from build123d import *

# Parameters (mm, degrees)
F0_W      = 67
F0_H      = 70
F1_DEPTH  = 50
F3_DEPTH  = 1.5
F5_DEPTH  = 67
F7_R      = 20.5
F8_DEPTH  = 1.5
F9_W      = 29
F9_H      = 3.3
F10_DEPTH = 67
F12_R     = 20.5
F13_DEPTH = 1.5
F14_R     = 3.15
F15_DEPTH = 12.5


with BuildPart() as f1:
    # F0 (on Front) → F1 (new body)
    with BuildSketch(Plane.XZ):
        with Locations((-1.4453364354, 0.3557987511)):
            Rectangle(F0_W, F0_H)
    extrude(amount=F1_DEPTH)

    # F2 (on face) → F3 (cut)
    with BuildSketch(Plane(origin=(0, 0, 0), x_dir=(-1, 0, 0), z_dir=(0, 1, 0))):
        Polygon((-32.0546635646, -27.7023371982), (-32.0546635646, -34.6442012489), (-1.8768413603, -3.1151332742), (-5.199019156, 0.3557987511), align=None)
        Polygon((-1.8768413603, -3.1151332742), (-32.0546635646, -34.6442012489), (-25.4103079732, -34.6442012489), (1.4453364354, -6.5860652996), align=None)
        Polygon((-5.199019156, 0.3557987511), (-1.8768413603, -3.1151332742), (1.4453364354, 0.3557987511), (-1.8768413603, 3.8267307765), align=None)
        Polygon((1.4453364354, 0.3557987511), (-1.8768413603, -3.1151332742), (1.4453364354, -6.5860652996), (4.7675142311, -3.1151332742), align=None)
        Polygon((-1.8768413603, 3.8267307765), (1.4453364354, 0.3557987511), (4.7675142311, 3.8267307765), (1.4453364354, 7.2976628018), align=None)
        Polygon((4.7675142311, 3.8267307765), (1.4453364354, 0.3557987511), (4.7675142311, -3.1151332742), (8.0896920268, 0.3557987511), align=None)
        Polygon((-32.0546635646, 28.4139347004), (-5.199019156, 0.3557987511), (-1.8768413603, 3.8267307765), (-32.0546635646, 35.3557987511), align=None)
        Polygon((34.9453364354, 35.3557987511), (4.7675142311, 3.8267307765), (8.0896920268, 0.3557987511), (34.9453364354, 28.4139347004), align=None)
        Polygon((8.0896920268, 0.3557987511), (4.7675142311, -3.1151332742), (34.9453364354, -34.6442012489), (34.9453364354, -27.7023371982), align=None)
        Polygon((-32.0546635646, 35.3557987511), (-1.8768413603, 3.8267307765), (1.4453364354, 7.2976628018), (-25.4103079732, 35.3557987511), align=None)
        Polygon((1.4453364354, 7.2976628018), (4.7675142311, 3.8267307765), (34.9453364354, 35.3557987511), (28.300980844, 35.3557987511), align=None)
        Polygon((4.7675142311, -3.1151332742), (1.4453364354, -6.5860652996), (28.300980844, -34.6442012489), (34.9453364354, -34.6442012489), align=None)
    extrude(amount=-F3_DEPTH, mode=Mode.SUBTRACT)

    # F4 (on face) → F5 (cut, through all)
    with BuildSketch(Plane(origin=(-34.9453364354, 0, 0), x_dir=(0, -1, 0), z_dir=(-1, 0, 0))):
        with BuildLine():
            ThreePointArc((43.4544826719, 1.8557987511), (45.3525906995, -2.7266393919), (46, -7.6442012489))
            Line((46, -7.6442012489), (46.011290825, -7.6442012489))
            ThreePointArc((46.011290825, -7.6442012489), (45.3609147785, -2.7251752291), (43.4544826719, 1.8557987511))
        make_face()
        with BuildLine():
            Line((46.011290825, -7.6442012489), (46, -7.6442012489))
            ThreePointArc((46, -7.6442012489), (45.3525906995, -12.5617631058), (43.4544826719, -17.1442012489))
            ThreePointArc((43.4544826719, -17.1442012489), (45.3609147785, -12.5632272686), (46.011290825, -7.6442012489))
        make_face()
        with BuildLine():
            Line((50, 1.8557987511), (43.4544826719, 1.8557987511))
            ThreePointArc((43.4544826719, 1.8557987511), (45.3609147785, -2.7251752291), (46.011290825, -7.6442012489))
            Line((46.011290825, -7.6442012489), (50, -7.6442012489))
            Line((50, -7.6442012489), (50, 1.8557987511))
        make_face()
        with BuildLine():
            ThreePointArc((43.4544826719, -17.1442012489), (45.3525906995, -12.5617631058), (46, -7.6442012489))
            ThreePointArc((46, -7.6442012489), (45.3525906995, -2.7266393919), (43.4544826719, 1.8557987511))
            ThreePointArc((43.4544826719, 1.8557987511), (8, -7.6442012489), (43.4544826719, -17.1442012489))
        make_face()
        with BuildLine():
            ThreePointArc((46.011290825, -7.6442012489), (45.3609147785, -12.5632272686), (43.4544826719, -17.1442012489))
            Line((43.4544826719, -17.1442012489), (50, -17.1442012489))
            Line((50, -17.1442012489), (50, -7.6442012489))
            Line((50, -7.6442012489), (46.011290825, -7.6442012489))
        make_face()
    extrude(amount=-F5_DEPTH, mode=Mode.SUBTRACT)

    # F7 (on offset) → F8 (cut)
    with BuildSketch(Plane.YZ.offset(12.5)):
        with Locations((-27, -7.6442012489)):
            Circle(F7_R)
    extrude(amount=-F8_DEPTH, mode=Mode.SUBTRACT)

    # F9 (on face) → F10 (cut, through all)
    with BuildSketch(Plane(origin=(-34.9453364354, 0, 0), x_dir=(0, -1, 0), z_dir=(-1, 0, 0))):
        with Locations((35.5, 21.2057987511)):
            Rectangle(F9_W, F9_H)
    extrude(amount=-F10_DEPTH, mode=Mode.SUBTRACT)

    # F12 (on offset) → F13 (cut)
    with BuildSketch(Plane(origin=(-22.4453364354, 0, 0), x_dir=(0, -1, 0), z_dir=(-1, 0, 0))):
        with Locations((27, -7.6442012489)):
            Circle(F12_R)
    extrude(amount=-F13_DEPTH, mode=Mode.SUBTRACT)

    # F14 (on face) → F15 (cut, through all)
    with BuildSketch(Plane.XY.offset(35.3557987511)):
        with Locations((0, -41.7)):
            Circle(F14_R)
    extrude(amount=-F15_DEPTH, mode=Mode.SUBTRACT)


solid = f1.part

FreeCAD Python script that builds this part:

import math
import FreeCAD as App
import Part
import Sketcher

V = App.Vector
Q = App.Units.Quantity

doc = App.newDocument("Part")
body = doc.addObject("PartDesign::Body", "Body")

sketch1 = doc.addObject("Sketcher::SketchObject", "Sketch")
body.addObject(sketch1)
sketch1.AttachmentSupport = (doc.XZ_Plane, [""])
sketch1.MapMode = "FlatFace"
sketch1.addGeometry([
    Part.LineSegment(V(-35, 35, 0), V(-35, -35, 0)),
    Part.LineSegment(V(-35, -35, 0), V(32, -35, 0)),
    Part.LineSegment(V(32, -35, 0), V(32, 35, 0)),
    Part.LineSegment(V(32, 35, 0), V(-35, 35, 0)),
], False)
sketch1.addConstraint([
    Sketcher.Constraint("Coincident", 0, 2, 1, 1),
    Sketcher.Constraint("Coincident", 1, 2, 2, 1),
    Sketcher.Constraint("Coincident", 2, 2, 3, 1),
    Sketcher.Constraint("Coincident", 3, 2, 0, 1),
    Sketcher.Constraint("Vertical", 0),
    Sketcher.Constraint("Horizontal", 1),
    Sketcher.Constraint("Vertical", 2),
    Sketcher.Constraint("Horizontal", 3),
    Sketcher.Constraint("DistanceX", 1, 1, 1, 2, Q("67 mm")),
    Sketcher.Constraint("DistanceY", 0, 2, 0, 1, Q("70 mm")),
    Sketcher.Constraint("DistanceY", 0, 2, -1, 1, Q("34.644201 mm")),
    Sketcher.Constraint("DistanceX", 0, 2, -1, 1, Q("34.945336 mm")),
])
pad1 = doc.addObject("PartDesign::Pad", "Pad")
body.addObject(pad1)
pad1.Profile = sketch1
pad1.Length = 50

sketch2 = doc.addObject("Sketcher::SketchObject", "Sketch001")
body.addObject(sketch2)
sketch2.AttachmentSupport = (doc.XZ_Plane, [""])
sketch2.MapMode = "FlatFace"
sketch2.addGeometry([
    Part.LineSegment(V(32, -28, 0), V(32, -35, 0)),
    Part.LineSegment(V(32, -35, 0), V(25, -35, 0)),
    Part.LineSegment(V(25, -35, 0), V(-1, -7, 0)),
    Part.LineSegment(V(-1, -7, 0), V(-28, -35, 0)),
    Part.LineSegment(V(-28, -35, 0), V(-35, -35, 0)),
    Part.LineSegment(V(-35, -35, 0), V(-35, -28, 0)),
    Part.LineSegment(V(-35, -28, 0), V(-8, 0, 0)),
    Part.LineSegment(V(-8, 0, 0), V(-35, 28, 0)),
    Part.LineSegment(V(-35, 28, 0), V(-35, 35, 0)),
    Part.LineSegment(V(-35, 35, 0), V(-28, 35, 0)),
    Part.LineSegment(V(-28, 35, 0), V(-1, 7, 0)),
    Part.LineSegment(V(-1, 7, 0), V(25, 35, 0)),
    Part.LineSegment(V(25, 35, 0), V(32, 35, 0)),
    Part.LineSegment(V(32, 35, 0), V(32, 28, 0)),
    Part.LineSegment(V(32, 28, 0), V(5, 0, 0)),
    Part.LineSegment(V(5, 0, 0), V(32, -28, 0)),
], False)
sketch2.addConstraint([
    Sketcher.Constraint("Coincident", 0, 2, 1, 1),
    Sketcher.Constraint("Coincident", 1, 2, 2, 1),
    Sketcher.Constraint("Coincident", 2, 2, 3, 1),
    Sketcher.Constraint("Coincident", 3, 2, 4, 1),
    Sketcher.Constraint("Coincident", 4, 2, 5, 1),
    Sketcher.Constraint("Coincident", 5, 2, 6, 1),
    Sketcher.Constraint("Coincident", 6, 2, 7, 1),
    Sketcher.Constraint("Coincident", 7, 2, 8, 1),
    Sketcher.Constraint("Coincident", 8, 2, 9, 1),
    Sketcher.Constraint("Coincident", 9, 2, 10, 1),
    Sketcher.Constraint("Coincident", 10, 2, 11, 1),
    Sketcher.Constraint("Coincident", 11, 2, 12, 1),
    Sketcher.Constraint("Coincident", 12, 2, 13, 1),
    Sketcher.Constraint("Coincident", 13, 2, 14, 1),
    Sketcher.Constraint("Coincident", 14, 2, 15, 1),
    Sketcher.Constraint("Coincident", 15, 2, 0, 1),
    Sketcher.Constraint("Vertical", 0),
    Sketcher.Constraint("Horizontal", 1),
    Sketcher.Constraint("Horizontal", 4),
    Sketcher.Constraint("Vertical", 5),
    Sketcher.Constraint("Vertical", 8),
    Sketcher.Constraint("Horizontal", 9),
    Sketcher.Constraint("Horizontal", 12),
    Sketcher.Constraint("Vertical", 13),
    Sketcher.Constraint("Parallel", 3, 6),
    Sketcher.Constraint("Parallel", 2, 7),
    Sketcher.Constraint("Parallel", 7, 10),
    Sketcher.Constraint("Parallel", 6, 11),
    Sketcher.Constraint("Parallel", 11, 14),
    Sketcher.Constraint("Parallel", 10, 15),
    Sketcher.Constraint("Horizontal", 1, 2, 3, 2),
    Sketcher.Constraint("Horizontal", 9, 2, 11, 2),
    Sketcher.Constraint("Horizontal", 7, 2, 13, 2),
    Sketcher.Constraint("Horizontal", 6, 2, 14, 2),
    Sketcher.Constraint("Horizontal", 5, 2, 15, 2),
    Sketcher.Constraint("Vertical", 5, 2, 7, 2),
    Sketcher.Constraint("Vertical", 3, 2, 9, 2),
    Sketcher.Constraint("Vertical", 2, 2, 10, 2),
    Sketcher.Constraint("Vertical", 1, 2, 11, 2),
    Sketcher.Constraint("Equal", 1, 4),
    Sketcher.Constraint("Equal", 5, 8),
    Sketcher.Constraint("Equal", 3, 6),
    Sketcher.Constraint("DistanceX", 4, 2, 0, 2, Q("67 mm")),
    Sketcher.Constraint("DistanceY", 3, 2, 6, 2, Q("35 mm")),
    Sketcher.Constraint("DistanceY", 0, 2, -1, 1, Q("34.644201 mm")),
    Sketcher.Constraint("DistanceX", 1, 2, 1, 1, Q("6.644356 mm")),
    Sketcher.Constraint("DistanceY", 0, 2, 0, 1, Q("6.941864 mm")),
    Sketcher.Constraint("DistanceX", 3, 2, -1, 1, Q("28.300981 mm")),
])
pocket1 = doc.addObject("PartDesign::Pocket", "Pocket")
body.addObject(pocket1)
pocket1.Profile = sketch2
pocket1.Length = 1.5
pocket1.Reversed = True

sketch3 = doc.addObject("Sketcher::SketchObject", "Sketch002")
body.addObject(sketch3)
sketch3.AttachmentSupport = (doc.YZ_Plane, [""])
sketch3.MapMode = "FlatFace"
sketch3.AttachmentOffset = App.Placement(V(0, 0, -34.945336), App.Rotation())
sketch3.addGeometry([
    Part.LineSegment(V(-50, 2, 0), V(-43, 2, 0)),
    Part.ArcOfCircle(Part.Circle(V(-27, -8, 0), V(0, 0, 1), 19), math.radians(-150), math.radians(150)),
    Part.LineSegment(V(-43, -17, 0), V(-50, -17, 0)),
    Part.LineSegment(V(-50, -17, 0), V(-50, 2, 0)),
], False)
sketch3.addConstraint([
    Sketcher.Constraint("Coincident", 0, 2, 1, 2),
    Sketcher.Constraint("Coincident", 1, 1, 2, 1),
    Sketcher.Constraint("Coincident", 2, 2, 3, 1),
    Sketcher.Constraint("Coincident", 3, 2, 0, 1),
    Sketcher.Constraint("Horizontal", 0),
    Sketcher.Constraint("Horizontal", 2),
    Sketcher.Constraint("Vertical", 3),
    Sketcher.Constraint("Vertical", 0, 2, 1, 1),
    Sketcher.Constraint("Radius", 1, Q("19 mm")),
    Sketcher.Constraint("DistanceY", 3, 1, 3, 2, Q("19 mm")),
    Sketcher.Constraint("DistanceX", 1, 3, -1, 1, Q("27 mm")),
    Sketcher.Constraint("DistanceX", 2, 2, -1, 1, Q("50 mm")),
    Sketcher.Constraint("DistanceY", 1, 3, -1, 1, Q("7.644201 mm")),
])
pocket2 = doc.addObject("PartDesign::Pocket", "Pocket001")
body.addObject(pocket2)
pocket2.Profile = sketch3
pocket2.Type = "ThroughAll"
pocket2.Reversed = True

sketch4 = doc.addObject("Sketcher::SketchObject", "Sketch003")
body.addObject(sketch4)
sketch4.AttachmentSupport = (doc.YZ_Plane, [""])
sketch4.MapMode = "FlatFace"
sketch4.AttachmentOffset = App.Placement(V(0, 0, 12.5), App.Rotation())
sketch4.addGeometry(Part.Circle(V(-27, -8, 0), V(0, 0, 1), 20), False)
sketch4.addConstraint([
    Sketcher.Constraint("Diameter", 0, Q("41 mm")),
    Sketcher.Constraint("DistanceX", 0, 3, -1, 1, Q("27 mm")),
    Sketcher.Constraint("DistanceY", 0, 3, -1, 1, Q("7.644201 mm")),
])
pocket3 = doc.addObject("PartDesign::Pocket", "Pocket002")
body.addObject(pocket3)
pocket3.Profile = sketch4
pocket3.Length = 1.5

sketch5 = doc.addObject("Sketcher::SketchObject", "Sketch004")
body.addObject(sketch5)
sketch5.AttachmentSupport = (doc.YZ_Plane, [""])
sketch5.MapMode = "FlatFace"
sketch5.AttachmentOffset = App.Placement(V(0, 0, -34.945336), App.Rotation())
sketch5.addGeometry([
    Part.LineSegment(V(-21, 22.9, 0), V(-21, 19.6, 0)),
    Part.LineSegment(V(-21, 19.6, 0), V(-50, 19.6, 0)),
    Part.LineSegment(V(-50, 19.6, 0), V(-50, 22.9, 0)),
    Part.LineSegment(V(-50, 22.9, 0), V(-21, 22.9, 0)),
], False)
sketch5.addConstraint([
    Sketcher.Constraint("Coincident", 0, 2, 1, 1),
    Sketcher.Constraint("Coincident", 1, 2, 2, 1),
    Sketcher.Constraint("Coincident", 2, 2, 3, 1),
    Sketcher.Constraint("Coincident", 3, 2, 0, 1),
    Sketcher.Constraint("Vertical", 0),
    Sketcher.Constraint("Horizontal", 1),
    Sketcher.Constraint("Vertical", 2),
    Sketcher.Constraint("Horizontal", 3),
    Sketcher.Constraint("DistanceX", 1, 2, 1, 1, Q("29 mm")),
    Sketcher.Constraint("DistanceY", 0, 2, 0, 1, Q("3.3 mm")),
    Sketcher.Constraint("DistanceX", 0, 2, -1, 1, Q("21 mm")),
    Sketcher.Constraint("DistanceY", -1, 1, 0, 2, Q("19.555799 mm")),
])
pocket4 = doc.addObject("PartDesign::Pocket", "Pocket003")
body.addObject(pocket4)
pocket4.Profile = sketch5
pocket4.Type = "ThroughAll"
pocket4.Reversed = True

sketch6 = doc.addObject("Sketcher::SketchObject", "Sketch005")
body.addObject(sketch6)
sketch6.AttachmentSupport = (doc.YZ_Plane, [""])
sketch6.MapMode = "FlatFace"
sketch6.AttachmentOffset = App.Placement(V(0, 0, -22.445336), App.Rotation())
sketch6.addGeometry(Part.Circle(V(-27, -8, 0), V(0, 0, 1), 20), False)
sketch6.addConstraint([
    Sketcher.Constraint("Diameter", 0, Q("41 mm")),
    Sketcher.Constraint("DistanceX", 0, 3, -1, 1, Q("27 mm")),
    Sketcher.Constraint("DistanceY", 0, 3, -1, 1, Q("7.644201 mm")),
])
pocket5 = doc.addObject("PartDesign::Pocket", "Pocket004")
body.addObject(pocket5)
pocket5.Profile = sketch6
pocket5.Length = 1.5
pocket5.Reversed = True

sketch7 = doc.addObject("Sketcher::SketchObject", "Sketch006")
body.addObject(sketch7)
sketch7.AttachmentSupport = (doc.XY_Plane, [""])
sketch7.MapMode = "FlatFace"
sketch7.AttachmentOffset = App.Placement(V(0, 0, 35.355799), App.Rotation())
sketch7.addGeometry(Part.Circle(V(0, -41.7, 0), V(0, 0, 1), 3.1), False)
sketch7.addConstraint([
    Sketcher.Constraint("PointOnObject", 0, 3, -2),
    Sketcher.Constraint("Diameter", 0, Q("6.3 mm")),
    Sketcher.Constraint("DistanceY", 0, 3, -1, 1, Q("41.7 mm")),
])
pocket6 = doc.addObject("PartDesign::Pocket", "Pocket005")
body.addObject(pocket6)
pocket6.Profile = sketch7
pocket6.Length = 12.5

doc.recompute()
